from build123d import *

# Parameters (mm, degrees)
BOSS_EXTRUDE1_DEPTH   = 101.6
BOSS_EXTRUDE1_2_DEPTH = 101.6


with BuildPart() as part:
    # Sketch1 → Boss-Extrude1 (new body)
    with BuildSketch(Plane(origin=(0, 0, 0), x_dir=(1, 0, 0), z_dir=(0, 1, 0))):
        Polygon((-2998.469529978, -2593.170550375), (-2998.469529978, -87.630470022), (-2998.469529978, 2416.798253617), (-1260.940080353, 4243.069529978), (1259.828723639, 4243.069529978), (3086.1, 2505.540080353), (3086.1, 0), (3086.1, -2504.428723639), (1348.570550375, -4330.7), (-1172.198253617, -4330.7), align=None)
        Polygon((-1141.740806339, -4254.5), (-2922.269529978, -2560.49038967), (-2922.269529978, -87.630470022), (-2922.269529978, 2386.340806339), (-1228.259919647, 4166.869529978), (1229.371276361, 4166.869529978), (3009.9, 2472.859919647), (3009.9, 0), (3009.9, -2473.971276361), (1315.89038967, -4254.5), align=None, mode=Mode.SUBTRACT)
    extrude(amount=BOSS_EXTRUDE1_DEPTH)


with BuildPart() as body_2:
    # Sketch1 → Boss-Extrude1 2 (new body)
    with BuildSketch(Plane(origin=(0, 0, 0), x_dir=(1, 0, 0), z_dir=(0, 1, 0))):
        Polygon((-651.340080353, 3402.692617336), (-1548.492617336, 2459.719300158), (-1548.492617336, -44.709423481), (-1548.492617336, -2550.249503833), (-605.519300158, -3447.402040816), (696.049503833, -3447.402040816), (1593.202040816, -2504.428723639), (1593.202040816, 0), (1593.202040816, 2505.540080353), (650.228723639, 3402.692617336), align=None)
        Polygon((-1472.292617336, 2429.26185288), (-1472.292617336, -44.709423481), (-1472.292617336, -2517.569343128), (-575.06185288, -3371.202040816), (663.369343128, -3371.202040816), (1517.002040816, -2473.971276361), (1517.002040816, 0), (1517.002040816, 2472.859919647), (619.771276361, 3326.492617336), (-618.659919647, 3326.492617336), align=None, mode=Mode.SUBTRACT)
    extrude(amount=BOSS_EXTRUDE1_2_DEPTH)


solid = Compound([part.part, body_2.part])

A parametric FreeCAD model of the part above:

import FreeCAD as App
import Part
import Sketcher
Q = App.Units.Quantity


def add_polygon(sketch, points):
    """Adds a closed chain of lines whose ends are joined by coincident constraints."""
    first, n = sketch.GeometryCount, len(points)
    for a, b in zip(points, points[1:] + points[:1]):
        sketch.addGeometry(Part.LineSegment(App.Vector(*a, 0), App.Vector(*b, 0)), False)
    for i in range(n):
        sketch.addConstraint(Sketcher.Constraint("Coincident", first + i, 2, first + (i + 1) % n, 1))

doc = App.newDocument("Part")
params = doc.addObject("Spreadsheet::Sheet", "Params")
for row, (alias, value) in enumerate([
    ("pad1_length", "4 in"),
    ("pad2_length", "4 in"),
], start=1):
    params.set(f"A{row}", alias)
    params.set(f"B{row}", "=" + value)
    params.setAlias(f"B{row}", alias)

body = doc.addObject("PartDesign::Body", "Body")

sketch1 = body.newObject("Sketcher::SketchObject", "Sketch")
sketch1.AttachmentSupport = (doc.getObject("XZ_Plane"), [""])
sketch1.MapMode = "FlatFace"
add_polygon(sketch1, [(-2998, -2417), (-2998, 2593), (-1172, 4331), (1349, 4331), (3086, 2504), (3086, -2506), (1260, -4243), (-1261, -4243)])
add_polygon(sketch1, [(-1142, 4254), (-2922, 2560), (-2922, -2386), (-1228, -4167), (1229, -4167), (3010, -2473), (3010, 2474), (1316, 4254)])
sketch1.addConstraint([
    Sketcher.Constraint("Vertical", 0),
    Sketcher.Constraint("Horizontal", 2),
    Sketcher.Constraint("Vertical", 4),
    Sketcher.Constraint("Horizontal", 6),
    Sketcher.Constraint("Vertical", 9),
    Sketcher.Constraint("Horizontal", 11),
    Sketcher.Constraint("Vertical", 13),
    Sketcher.Constraint("Horizontal", 15),
    Sketcher.Constraint("Perpendicular", 1, 3),
    Sketcher.Constraint("Perpendicular", 3, 5),
    Sketcher.Constraint("Perpendicular", 5, 7),
    Sketcher.Constraint("Perpendicular", 7, 8),
    Sketcher.Constraint("Perpendicular", 8, 10),
    Sketcher.Constraint("Perpendicular", 10, 12),
    Sketcher.Constraint("Perpendicular", 12, 14),
    Sketcher.Constraint("Equal", 2, 6),
    Sketcher.Constraint("Equal", 11, 15),
    Sketcher.Constraint("Equal", 0, 4),
    Sketcher.Constraint("Equal", 9, 13),
    Sketcher.Constraint("Equal", 1, 3),
    Sketcher.Constraint("Equal", 8, 10),
    Sketcher.Constraint("DistanceX", 0, 2, 8, 2, Q("3 in")),
    Sketcher.Constraint("DistanceY", 6, 2, 10, 2, Q("3 in")),
    Sketcher.Constraint("DistanceX", 12, 2, 4, 2, Q("3 in")),
    Sketcher.Constraint("DistanceY", 14, 2, 2, 2, Q("3 in")),
    Sketcher.Constraint("DistanceY", -1, 1, 1, 2, Q("170.5 in")),
    Sketcher.Constraint("DistanceX", -1, 1, 3, 2, Q("121.5 in")),
    Sketcher.Constraint("DistanceX", 2, 1, 2, 2, 2520.768804),
    Sketcher.Constraint("DistanceX", 11, 1, 11, 2, 2457.631196),
    Sketcher.Constraint("DistanceY", 0, 1, 0, 2, 5009.968804),
    Sketcher.Constraint("DistanceX", 0, 2, -1, 1, 2998.46953),
    Sketcher.Constraint("DistanceY", -1, 1, 0, 2, 2593.17055),
])
pad1 = body.newObject("PartDesign::Pad", "Pad")
pad1.Profile = sketch1
pad1.setExpression("Length", "Params.pad1_length")
pad1.Reversed = True
body2 = doc.addObject("PartDesign::Body", "Body001")

sketch2 = body2.newObject("Sketcher::SketchObject", "Sketch001")
sketch2.AttachmentSupport = (doc.getObject("XZ_Plane001"), [""])
sketch2.MapMode = "FlatFace"
add_polygon(sketch2, [(-651, -3403), (-1548, -2460), (-1548, 2550), (-606, 3447), (696, 3447), (1593, 2504), (1593, -2506), (650, -3403)])
add_polygon(sketch2, [(-1472, 2518), (-1472, -2429), (-619, -3326), (620, -3326), (1517, -2473), (1517, 2474), (663, 3371), (-575, 3371)])
sketch2.addConstraint([
    Sketcher.Constraint("Vertical", 1),
    Sketcher.Constraint("Horizontal", 3),
    Sketcher.Constraint("Vertical", 5),
    Sketcher.Constraint("Horizontal", 7),
    Sketcher.Constraint("Vertical", 8),
    Sketcher.Constraint("Horizontal", 10),
    Sketcher.Constraint("Vertical", 12),
    Sketcher.Constraint("Horizontal", 14),
    Sketcher.Constraint("Perpendicular", 0, 2),
    Sketcher.Constraint("Perpendicular", 2, 4),
    Sketcher.Constraint("Perpendicular", 4, 6),
    Sketcher.Constraint("Perpendicular", 6, 9),
    Sketcher.Constraint("Perpendicular", 9, 11),
    Sketcher.Constraint("Perpendicular", 11, 13),
    Sketcher.Constraint("Perpendicular", 13, 15),
    Sketcher.Constraint("Equal", 3, 7),
    Sketcher.Constraint("Equal", 10, 14),
    Sketcher.Constraint("Equal", 1, 5),
    Sketcher.Constraint("Equal", 8, 12),
    Sketcher.Constraint("Equal", 0, 2),
    Sketcher.Constraint("Equal", 9, 11),
    Sketcher.Constraint("DistanceX", 0, 2, 8, 2, Q("3 in")),
    Sketcher.Constraint("DistanceY", 7, 2, 9, 2, Q("3 in")),
    Sketcher.Constraint("DistanceX", 11, 2, 5, 2, Q("3 in")),
    Sketcher.Constraint("DistanceY", 13, 2, 3, 2, Q("3 in")),
    Sketcher.Constraint("DistanceX", 1, 2, 3, 2, Q("88.3678 in")),
    Sketcher.Constraint("DistanceY", 5, 2, 3, 2, Q("234.3678 in")),
    Sketcher.Constraint("DistanceY", 0, 2, -1, 1, 2459.7193),
    Sketcher.Constraint("DistanceX", 2, 2, -1, 1, 605.5193),
    Sketcher.Constraint("DistanceX", 3, 1, 3, 2, 1301.568804),
    Sketcher.Constraint("DistanceX", 10, 1, 10, 2, 1238.431196),
    Sketcher.Constraint("DistanceY", -1, 1, 2, 2, 3447.402041),
])
pad2 = body2.newObject("PartDesign::Pad", "Pad001")
pad2.Profile = sketch2
pad2.setExpression("Length", "Params.pad2_length")
pad2.Reversed = True

doc.recompute()
